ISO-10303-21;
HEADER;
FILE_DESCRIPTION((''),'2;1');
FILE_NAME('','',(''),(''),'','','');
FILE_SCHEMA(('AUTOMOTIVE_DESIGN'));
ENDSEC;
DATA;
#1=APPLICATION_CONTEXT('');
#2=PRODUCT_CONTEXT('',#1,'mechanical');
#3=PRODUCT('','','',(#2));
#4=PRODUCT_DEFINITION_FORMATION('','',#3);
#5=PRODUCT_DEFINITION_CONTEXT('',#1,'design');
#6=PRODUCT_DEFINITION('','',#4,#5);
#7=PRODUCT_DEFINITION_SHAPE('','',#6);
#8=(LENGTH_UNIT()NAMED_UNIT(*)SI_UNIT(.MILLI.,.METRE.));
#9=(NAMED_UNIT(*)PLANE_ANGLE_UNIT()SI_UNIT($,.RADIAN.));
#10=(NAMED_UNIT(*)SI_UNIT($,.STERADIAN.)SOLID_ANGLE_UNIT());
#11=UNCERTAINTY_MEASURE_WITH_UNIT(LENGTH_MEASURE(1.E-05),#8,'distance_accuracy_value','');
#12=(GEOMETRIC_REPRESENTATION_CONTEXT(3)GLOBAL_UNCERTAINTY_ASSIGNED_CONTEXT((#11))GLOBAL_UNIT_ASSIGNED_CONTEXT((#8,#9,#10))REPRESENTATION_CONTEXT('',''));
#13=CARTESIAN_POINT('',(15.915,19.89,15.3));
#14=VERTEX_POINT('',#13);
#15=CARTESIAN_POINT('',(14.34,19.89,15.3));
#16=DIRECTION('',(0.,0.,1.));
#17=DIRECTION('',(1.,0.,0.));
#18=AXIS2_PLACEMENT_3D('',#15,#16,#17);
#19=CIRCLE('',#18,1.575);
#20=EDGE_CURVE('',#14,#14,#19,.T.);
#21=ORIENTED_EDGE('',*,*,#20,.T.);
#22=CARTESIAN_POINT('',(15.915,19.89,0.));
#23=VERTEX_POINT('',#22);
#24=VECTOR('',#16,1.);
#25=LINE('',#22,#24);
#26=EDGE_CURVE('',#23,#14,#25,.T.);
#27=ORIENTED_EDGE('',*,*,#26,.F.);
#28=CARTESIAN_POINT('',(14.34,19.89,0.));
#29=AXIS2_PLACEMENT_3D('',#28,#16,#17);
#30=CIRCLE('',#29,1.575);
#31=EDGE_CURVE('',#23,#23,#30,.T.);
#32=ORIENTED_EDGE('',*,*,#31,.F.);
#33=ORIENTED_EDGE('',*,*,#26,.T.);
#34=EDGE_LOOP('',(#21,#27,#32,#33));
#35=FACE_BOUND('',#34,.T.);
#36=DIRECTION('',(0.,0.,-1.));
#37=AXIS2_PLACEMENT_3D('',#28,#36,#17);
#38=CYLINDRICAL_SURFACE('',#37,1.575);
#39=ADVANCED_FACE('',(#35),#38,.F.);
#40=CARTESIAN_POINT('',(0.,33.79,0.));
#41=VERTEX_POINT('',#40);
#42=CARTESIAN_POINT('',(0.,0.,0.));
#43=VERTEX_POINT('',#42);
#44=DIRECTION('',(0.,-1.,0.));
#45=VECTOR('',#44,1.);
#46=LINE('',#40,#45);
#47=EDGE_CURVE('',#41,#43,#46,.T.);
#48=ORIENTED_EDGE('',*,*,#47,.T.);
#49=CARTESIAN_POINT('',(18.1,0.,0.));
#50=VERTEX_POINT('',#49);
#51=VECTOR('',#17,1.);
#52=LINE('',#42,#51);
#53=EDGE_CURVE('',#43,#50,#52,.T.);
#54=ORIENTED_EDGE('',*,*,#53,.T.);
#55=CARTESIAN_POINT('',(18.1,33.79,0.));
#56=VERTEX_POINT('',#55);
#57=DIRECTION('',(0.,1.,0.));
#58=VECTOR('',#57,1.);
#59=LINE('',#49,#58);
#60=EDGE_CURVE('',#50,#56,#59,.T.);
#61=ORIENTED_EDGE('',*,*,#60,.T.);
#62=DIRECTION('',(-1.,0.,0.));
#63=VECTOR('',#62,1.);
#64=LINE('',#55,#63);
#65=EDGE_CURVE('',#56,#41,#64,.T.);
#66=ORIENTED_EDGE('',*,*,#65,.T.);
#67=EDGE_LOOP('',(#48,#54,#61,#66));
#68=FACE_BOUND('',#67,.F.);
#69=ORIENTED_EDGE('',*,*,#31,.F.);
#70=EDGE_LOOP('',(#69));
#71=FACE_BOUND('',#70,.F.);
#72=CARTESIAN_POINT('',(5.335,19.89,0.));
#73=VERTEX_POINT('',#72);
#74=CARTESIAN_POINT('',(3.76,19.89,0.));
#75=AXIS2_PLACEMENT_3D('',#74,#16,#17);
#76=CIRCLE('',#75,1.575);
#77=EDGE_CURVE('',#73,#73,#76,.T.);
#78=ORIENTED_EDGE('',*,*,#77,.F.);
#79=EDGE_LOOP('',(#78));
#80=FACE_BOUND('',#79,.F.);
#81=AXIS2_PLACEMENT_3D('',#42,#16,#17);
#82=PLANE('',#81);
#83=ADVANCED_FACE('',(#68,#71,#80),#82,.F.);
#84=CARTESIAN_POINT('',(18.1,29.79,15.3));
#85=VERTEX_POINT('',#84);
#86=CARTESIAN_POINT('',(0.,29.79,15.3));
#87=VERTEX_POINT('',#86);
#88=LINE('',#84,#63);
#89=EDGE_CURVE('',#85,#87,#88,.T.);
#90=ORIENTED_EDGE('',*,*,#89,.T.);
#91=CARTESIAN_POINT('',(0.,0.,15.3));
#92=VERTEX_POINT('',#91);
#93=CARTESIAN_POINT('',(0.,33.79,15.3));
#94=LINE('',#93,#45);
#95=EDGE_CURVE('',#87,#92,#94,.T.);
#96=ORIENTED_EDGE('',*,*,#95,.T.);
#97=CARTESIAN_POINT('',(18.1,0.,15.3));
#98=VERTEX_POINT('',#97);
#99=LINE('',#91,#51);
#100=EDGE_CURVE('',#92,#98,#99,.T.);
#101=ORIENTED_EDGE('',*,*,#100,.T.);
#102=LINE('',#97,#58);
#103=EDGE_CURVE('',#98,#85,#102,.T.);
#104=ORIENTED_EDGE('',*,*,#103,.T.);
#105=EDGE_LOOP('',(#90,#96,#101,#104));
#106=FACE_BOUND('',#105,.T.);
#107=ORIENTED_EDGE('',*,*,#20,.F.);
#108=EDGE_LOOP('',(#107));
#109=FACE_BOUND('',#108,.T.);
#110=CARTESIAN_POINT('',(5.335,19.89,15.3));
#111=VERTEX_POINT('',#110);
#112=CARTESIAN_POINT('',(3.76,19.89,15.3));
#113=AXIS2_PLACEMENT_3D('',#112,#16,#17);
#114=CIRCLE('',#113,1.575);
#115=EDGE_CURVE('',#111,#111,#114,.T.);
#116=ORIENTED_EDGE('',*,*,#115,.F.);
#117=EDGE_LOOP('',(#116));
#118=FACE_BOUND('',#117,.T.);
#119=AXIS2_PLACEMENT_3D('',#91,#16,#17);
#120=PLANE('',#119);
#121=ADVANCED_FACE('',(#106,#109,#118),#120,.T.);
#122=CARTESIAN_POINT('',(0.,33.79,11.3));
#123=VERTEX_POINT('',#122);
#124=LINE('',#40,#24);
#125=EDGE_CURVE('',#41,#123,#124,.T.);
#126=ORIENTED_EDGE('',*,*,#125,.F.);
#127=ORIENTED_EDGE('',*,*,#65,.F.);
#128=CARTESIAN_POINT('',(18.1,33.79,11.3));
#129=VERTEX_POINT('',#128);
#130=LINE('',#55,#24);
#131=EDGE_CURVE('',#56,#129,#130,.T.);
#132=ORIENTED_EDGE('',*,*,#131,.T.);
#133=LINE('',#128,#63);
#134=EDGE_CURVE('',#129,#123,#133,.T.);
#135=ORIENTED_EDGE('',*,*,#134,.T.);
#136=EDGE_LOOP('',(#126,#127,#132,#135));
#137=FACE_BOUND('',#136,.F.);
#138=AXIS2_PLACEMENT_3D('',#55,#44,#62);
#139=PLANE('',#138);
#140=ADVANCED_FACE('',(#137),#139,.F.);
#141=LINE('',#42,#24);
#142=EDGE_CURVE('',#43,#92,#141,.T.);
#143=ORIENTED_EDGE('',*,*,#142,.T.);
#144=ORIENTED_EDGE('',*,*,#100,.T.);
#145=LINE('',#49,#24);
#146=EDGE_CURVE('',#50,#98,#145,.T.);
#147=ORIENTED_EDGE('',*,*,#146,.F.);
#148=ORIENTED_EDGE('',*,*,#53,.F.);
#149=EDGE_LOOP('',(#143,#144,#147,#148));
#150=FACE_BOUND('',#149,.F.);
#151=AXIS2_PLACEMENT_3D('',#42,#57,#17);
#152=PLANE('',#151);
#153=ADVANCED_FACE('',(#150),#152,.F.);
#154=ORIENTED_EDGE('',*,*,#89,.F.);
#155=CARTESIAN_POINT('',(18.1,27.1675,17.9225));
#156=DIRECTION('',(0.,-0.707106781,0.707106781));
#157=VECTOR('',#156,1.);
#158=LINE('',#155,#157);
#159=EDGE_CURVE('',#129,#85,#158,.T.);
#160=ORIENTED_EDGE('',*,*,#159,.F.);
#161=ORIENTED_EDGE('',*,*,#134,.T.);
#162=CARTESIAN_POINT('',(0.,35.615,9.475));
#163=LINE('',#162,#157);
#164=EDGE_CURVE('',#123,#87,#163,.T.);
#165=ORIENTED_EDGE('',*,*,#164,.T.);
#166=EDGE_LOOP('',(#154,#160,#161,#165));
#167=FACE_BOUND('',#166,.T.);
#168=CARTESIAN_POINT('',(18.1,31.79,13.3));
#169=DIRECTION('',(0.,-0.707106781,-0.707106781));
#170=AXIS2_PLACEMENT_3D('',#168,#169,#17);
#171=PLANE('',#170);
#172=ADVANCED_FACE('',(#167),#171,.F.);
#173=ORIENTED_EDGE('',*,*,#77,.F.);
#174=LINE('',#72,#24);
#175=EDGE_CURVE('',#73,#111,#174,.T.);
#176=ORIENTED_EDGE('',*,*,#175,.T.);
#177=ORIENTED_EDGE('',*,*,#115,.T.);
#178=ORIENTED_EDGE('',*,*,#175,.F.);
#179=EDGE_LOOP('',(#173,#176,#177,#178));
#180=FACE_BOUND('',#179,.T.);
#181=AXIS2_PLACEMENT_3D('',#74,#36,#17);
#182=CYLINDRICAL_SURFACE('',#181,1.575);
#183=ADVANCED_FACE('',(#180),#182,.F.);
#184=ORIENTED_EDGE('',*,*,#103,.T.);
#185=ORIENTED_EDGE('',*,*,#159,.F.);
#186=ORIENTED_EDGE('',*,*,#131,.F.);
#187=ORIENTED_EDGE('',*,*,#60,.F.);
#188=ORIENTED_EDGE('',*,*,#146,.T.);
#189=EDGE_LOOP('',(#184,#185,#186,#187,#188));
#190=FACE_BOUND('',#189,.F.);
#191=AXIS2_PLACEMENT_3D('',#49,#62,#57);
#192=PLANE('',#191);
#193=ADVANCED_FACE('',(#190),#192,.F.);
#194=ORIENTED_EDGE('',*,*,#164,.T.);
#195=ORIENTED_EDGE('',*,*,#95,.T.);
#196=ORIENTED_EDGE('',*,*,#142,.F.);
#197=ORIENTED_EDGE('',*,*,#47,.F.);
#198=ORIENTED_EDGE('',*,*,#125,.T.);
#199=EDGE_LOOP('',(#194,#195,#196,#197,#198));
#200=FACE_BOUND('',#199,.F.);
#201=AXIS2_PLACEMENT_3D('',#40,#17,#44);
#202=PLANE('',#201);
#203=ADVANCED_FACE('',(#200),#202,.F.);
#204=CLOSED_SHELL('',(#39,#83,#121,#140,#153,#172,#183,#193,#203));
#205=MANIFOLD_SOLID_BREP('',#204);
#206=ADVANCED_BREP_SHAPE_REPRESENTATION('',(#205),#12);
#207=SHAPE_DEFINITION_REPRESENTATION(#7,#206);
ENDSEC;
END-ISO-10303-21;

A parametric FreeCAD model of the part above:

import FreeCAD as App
import Part
import Sketcher
from FreeCAD import Vector


def edges_at(feature, points):
    """Names of the edges that pass closest to the given points."""
    edges = feature.Shape.Edges
    near = lambda p: min(range(len(edges)), key=lambda i: edges[i].distToShape(Part.Vertex(*p))[0])
    return sorted({f"Edge{near(p) + 1}" for p in points})

doc = App.newDocument("Part")
body = doc.addObject("PartDesign::Body", "Body")

# Sketch on XY plane
sketch1 = body.newObject("Sketcher::SketchObject", "Sketch")
sketch1.AttachmentSupport = (doc.getObject("XY_Plane"), [""])
sketch1.MapMode = "FlatFace"
sketch1.addGeometry([
    Part.LineSegment(Vector(0, 33.8, 0), Vector(0, 0, 0)),  # 0
    Part.LineSegment(Vector(0, 0, 0), Vector(18.1, 0, 0)),  # 1
    Part.LineSegment(Vector(18.1, 0, 0), Vector(18.1, 33.8, 0)),  # 2
    Part.LineSegment(Vector(18.1, 33.8, 0), Vector(0, 33.8, 0)),  # 3
    Part.Circle(Vector(3.8, 19.9, 0), Vector(0, 0, 1), 1.6),  # 4
    Part.Circle(Vector(14.3, 19.9, 0), Vector(0, 0, 1), 1.6),  # 5
], False)
sketch1.addConstraint([
    Sketcher.Constraint("Coincident", 0, 2, 1, 1),
    Sketcher.Constraint("Coincident", 1, 2, 2, 1),
    Sketcher.Constraint("Coincident", 2, 2, 3, 1),
    Sketcher.Constraint("Coincident", 3, 2, 0, 1),
    Sketcher.Constraint("Vertical", 0),
    Sketcher.Constraint("Horizontal", 1),
    Sketcher.Constraint("Vertical", 2),
    Sketcher.Constraint("Horizontal", 3),
    Sketcher.Constraint("Coincident", 0, 2, -1, 1),
    Sketcher.Constraint("Equal", 4, 5),
    Sketcher.Constraint("Horizontal", 4, 3, 5, 3),
    Sketcher.Constraint("Diameter", 4, 3.15),
    Sketcher.Constraint("DistanceX", 1, 1, 1, 2, 18.1),
    Sketcher.Constraint("DistanceY", 0, 2, 0, 1, 33.79),
    Sketcher.Constraint("DistanceY", 5, 3, 2, 2, 13.9),
    Sketcher.Constraint("DistanceX", 4, 3, 5, 3, 10.58),
    Sketcher.Constraint("DistanceX", -1, 1, 4, 3, 3.76),
])
pad1 = body.newObject("PartDesign::Pad", "Pad")
pad1.Profile = sketch1
pad1.Length = 15.3
doc.recompute()

chamfer = body.newObject("PartDesign::Chamfer", "Chamfer")
chamfer.Base = (pad1, edges_at(pad1, [(9.05, 33.79, 15.3)]))
chamfer.Size = 4

doc.recompute()
